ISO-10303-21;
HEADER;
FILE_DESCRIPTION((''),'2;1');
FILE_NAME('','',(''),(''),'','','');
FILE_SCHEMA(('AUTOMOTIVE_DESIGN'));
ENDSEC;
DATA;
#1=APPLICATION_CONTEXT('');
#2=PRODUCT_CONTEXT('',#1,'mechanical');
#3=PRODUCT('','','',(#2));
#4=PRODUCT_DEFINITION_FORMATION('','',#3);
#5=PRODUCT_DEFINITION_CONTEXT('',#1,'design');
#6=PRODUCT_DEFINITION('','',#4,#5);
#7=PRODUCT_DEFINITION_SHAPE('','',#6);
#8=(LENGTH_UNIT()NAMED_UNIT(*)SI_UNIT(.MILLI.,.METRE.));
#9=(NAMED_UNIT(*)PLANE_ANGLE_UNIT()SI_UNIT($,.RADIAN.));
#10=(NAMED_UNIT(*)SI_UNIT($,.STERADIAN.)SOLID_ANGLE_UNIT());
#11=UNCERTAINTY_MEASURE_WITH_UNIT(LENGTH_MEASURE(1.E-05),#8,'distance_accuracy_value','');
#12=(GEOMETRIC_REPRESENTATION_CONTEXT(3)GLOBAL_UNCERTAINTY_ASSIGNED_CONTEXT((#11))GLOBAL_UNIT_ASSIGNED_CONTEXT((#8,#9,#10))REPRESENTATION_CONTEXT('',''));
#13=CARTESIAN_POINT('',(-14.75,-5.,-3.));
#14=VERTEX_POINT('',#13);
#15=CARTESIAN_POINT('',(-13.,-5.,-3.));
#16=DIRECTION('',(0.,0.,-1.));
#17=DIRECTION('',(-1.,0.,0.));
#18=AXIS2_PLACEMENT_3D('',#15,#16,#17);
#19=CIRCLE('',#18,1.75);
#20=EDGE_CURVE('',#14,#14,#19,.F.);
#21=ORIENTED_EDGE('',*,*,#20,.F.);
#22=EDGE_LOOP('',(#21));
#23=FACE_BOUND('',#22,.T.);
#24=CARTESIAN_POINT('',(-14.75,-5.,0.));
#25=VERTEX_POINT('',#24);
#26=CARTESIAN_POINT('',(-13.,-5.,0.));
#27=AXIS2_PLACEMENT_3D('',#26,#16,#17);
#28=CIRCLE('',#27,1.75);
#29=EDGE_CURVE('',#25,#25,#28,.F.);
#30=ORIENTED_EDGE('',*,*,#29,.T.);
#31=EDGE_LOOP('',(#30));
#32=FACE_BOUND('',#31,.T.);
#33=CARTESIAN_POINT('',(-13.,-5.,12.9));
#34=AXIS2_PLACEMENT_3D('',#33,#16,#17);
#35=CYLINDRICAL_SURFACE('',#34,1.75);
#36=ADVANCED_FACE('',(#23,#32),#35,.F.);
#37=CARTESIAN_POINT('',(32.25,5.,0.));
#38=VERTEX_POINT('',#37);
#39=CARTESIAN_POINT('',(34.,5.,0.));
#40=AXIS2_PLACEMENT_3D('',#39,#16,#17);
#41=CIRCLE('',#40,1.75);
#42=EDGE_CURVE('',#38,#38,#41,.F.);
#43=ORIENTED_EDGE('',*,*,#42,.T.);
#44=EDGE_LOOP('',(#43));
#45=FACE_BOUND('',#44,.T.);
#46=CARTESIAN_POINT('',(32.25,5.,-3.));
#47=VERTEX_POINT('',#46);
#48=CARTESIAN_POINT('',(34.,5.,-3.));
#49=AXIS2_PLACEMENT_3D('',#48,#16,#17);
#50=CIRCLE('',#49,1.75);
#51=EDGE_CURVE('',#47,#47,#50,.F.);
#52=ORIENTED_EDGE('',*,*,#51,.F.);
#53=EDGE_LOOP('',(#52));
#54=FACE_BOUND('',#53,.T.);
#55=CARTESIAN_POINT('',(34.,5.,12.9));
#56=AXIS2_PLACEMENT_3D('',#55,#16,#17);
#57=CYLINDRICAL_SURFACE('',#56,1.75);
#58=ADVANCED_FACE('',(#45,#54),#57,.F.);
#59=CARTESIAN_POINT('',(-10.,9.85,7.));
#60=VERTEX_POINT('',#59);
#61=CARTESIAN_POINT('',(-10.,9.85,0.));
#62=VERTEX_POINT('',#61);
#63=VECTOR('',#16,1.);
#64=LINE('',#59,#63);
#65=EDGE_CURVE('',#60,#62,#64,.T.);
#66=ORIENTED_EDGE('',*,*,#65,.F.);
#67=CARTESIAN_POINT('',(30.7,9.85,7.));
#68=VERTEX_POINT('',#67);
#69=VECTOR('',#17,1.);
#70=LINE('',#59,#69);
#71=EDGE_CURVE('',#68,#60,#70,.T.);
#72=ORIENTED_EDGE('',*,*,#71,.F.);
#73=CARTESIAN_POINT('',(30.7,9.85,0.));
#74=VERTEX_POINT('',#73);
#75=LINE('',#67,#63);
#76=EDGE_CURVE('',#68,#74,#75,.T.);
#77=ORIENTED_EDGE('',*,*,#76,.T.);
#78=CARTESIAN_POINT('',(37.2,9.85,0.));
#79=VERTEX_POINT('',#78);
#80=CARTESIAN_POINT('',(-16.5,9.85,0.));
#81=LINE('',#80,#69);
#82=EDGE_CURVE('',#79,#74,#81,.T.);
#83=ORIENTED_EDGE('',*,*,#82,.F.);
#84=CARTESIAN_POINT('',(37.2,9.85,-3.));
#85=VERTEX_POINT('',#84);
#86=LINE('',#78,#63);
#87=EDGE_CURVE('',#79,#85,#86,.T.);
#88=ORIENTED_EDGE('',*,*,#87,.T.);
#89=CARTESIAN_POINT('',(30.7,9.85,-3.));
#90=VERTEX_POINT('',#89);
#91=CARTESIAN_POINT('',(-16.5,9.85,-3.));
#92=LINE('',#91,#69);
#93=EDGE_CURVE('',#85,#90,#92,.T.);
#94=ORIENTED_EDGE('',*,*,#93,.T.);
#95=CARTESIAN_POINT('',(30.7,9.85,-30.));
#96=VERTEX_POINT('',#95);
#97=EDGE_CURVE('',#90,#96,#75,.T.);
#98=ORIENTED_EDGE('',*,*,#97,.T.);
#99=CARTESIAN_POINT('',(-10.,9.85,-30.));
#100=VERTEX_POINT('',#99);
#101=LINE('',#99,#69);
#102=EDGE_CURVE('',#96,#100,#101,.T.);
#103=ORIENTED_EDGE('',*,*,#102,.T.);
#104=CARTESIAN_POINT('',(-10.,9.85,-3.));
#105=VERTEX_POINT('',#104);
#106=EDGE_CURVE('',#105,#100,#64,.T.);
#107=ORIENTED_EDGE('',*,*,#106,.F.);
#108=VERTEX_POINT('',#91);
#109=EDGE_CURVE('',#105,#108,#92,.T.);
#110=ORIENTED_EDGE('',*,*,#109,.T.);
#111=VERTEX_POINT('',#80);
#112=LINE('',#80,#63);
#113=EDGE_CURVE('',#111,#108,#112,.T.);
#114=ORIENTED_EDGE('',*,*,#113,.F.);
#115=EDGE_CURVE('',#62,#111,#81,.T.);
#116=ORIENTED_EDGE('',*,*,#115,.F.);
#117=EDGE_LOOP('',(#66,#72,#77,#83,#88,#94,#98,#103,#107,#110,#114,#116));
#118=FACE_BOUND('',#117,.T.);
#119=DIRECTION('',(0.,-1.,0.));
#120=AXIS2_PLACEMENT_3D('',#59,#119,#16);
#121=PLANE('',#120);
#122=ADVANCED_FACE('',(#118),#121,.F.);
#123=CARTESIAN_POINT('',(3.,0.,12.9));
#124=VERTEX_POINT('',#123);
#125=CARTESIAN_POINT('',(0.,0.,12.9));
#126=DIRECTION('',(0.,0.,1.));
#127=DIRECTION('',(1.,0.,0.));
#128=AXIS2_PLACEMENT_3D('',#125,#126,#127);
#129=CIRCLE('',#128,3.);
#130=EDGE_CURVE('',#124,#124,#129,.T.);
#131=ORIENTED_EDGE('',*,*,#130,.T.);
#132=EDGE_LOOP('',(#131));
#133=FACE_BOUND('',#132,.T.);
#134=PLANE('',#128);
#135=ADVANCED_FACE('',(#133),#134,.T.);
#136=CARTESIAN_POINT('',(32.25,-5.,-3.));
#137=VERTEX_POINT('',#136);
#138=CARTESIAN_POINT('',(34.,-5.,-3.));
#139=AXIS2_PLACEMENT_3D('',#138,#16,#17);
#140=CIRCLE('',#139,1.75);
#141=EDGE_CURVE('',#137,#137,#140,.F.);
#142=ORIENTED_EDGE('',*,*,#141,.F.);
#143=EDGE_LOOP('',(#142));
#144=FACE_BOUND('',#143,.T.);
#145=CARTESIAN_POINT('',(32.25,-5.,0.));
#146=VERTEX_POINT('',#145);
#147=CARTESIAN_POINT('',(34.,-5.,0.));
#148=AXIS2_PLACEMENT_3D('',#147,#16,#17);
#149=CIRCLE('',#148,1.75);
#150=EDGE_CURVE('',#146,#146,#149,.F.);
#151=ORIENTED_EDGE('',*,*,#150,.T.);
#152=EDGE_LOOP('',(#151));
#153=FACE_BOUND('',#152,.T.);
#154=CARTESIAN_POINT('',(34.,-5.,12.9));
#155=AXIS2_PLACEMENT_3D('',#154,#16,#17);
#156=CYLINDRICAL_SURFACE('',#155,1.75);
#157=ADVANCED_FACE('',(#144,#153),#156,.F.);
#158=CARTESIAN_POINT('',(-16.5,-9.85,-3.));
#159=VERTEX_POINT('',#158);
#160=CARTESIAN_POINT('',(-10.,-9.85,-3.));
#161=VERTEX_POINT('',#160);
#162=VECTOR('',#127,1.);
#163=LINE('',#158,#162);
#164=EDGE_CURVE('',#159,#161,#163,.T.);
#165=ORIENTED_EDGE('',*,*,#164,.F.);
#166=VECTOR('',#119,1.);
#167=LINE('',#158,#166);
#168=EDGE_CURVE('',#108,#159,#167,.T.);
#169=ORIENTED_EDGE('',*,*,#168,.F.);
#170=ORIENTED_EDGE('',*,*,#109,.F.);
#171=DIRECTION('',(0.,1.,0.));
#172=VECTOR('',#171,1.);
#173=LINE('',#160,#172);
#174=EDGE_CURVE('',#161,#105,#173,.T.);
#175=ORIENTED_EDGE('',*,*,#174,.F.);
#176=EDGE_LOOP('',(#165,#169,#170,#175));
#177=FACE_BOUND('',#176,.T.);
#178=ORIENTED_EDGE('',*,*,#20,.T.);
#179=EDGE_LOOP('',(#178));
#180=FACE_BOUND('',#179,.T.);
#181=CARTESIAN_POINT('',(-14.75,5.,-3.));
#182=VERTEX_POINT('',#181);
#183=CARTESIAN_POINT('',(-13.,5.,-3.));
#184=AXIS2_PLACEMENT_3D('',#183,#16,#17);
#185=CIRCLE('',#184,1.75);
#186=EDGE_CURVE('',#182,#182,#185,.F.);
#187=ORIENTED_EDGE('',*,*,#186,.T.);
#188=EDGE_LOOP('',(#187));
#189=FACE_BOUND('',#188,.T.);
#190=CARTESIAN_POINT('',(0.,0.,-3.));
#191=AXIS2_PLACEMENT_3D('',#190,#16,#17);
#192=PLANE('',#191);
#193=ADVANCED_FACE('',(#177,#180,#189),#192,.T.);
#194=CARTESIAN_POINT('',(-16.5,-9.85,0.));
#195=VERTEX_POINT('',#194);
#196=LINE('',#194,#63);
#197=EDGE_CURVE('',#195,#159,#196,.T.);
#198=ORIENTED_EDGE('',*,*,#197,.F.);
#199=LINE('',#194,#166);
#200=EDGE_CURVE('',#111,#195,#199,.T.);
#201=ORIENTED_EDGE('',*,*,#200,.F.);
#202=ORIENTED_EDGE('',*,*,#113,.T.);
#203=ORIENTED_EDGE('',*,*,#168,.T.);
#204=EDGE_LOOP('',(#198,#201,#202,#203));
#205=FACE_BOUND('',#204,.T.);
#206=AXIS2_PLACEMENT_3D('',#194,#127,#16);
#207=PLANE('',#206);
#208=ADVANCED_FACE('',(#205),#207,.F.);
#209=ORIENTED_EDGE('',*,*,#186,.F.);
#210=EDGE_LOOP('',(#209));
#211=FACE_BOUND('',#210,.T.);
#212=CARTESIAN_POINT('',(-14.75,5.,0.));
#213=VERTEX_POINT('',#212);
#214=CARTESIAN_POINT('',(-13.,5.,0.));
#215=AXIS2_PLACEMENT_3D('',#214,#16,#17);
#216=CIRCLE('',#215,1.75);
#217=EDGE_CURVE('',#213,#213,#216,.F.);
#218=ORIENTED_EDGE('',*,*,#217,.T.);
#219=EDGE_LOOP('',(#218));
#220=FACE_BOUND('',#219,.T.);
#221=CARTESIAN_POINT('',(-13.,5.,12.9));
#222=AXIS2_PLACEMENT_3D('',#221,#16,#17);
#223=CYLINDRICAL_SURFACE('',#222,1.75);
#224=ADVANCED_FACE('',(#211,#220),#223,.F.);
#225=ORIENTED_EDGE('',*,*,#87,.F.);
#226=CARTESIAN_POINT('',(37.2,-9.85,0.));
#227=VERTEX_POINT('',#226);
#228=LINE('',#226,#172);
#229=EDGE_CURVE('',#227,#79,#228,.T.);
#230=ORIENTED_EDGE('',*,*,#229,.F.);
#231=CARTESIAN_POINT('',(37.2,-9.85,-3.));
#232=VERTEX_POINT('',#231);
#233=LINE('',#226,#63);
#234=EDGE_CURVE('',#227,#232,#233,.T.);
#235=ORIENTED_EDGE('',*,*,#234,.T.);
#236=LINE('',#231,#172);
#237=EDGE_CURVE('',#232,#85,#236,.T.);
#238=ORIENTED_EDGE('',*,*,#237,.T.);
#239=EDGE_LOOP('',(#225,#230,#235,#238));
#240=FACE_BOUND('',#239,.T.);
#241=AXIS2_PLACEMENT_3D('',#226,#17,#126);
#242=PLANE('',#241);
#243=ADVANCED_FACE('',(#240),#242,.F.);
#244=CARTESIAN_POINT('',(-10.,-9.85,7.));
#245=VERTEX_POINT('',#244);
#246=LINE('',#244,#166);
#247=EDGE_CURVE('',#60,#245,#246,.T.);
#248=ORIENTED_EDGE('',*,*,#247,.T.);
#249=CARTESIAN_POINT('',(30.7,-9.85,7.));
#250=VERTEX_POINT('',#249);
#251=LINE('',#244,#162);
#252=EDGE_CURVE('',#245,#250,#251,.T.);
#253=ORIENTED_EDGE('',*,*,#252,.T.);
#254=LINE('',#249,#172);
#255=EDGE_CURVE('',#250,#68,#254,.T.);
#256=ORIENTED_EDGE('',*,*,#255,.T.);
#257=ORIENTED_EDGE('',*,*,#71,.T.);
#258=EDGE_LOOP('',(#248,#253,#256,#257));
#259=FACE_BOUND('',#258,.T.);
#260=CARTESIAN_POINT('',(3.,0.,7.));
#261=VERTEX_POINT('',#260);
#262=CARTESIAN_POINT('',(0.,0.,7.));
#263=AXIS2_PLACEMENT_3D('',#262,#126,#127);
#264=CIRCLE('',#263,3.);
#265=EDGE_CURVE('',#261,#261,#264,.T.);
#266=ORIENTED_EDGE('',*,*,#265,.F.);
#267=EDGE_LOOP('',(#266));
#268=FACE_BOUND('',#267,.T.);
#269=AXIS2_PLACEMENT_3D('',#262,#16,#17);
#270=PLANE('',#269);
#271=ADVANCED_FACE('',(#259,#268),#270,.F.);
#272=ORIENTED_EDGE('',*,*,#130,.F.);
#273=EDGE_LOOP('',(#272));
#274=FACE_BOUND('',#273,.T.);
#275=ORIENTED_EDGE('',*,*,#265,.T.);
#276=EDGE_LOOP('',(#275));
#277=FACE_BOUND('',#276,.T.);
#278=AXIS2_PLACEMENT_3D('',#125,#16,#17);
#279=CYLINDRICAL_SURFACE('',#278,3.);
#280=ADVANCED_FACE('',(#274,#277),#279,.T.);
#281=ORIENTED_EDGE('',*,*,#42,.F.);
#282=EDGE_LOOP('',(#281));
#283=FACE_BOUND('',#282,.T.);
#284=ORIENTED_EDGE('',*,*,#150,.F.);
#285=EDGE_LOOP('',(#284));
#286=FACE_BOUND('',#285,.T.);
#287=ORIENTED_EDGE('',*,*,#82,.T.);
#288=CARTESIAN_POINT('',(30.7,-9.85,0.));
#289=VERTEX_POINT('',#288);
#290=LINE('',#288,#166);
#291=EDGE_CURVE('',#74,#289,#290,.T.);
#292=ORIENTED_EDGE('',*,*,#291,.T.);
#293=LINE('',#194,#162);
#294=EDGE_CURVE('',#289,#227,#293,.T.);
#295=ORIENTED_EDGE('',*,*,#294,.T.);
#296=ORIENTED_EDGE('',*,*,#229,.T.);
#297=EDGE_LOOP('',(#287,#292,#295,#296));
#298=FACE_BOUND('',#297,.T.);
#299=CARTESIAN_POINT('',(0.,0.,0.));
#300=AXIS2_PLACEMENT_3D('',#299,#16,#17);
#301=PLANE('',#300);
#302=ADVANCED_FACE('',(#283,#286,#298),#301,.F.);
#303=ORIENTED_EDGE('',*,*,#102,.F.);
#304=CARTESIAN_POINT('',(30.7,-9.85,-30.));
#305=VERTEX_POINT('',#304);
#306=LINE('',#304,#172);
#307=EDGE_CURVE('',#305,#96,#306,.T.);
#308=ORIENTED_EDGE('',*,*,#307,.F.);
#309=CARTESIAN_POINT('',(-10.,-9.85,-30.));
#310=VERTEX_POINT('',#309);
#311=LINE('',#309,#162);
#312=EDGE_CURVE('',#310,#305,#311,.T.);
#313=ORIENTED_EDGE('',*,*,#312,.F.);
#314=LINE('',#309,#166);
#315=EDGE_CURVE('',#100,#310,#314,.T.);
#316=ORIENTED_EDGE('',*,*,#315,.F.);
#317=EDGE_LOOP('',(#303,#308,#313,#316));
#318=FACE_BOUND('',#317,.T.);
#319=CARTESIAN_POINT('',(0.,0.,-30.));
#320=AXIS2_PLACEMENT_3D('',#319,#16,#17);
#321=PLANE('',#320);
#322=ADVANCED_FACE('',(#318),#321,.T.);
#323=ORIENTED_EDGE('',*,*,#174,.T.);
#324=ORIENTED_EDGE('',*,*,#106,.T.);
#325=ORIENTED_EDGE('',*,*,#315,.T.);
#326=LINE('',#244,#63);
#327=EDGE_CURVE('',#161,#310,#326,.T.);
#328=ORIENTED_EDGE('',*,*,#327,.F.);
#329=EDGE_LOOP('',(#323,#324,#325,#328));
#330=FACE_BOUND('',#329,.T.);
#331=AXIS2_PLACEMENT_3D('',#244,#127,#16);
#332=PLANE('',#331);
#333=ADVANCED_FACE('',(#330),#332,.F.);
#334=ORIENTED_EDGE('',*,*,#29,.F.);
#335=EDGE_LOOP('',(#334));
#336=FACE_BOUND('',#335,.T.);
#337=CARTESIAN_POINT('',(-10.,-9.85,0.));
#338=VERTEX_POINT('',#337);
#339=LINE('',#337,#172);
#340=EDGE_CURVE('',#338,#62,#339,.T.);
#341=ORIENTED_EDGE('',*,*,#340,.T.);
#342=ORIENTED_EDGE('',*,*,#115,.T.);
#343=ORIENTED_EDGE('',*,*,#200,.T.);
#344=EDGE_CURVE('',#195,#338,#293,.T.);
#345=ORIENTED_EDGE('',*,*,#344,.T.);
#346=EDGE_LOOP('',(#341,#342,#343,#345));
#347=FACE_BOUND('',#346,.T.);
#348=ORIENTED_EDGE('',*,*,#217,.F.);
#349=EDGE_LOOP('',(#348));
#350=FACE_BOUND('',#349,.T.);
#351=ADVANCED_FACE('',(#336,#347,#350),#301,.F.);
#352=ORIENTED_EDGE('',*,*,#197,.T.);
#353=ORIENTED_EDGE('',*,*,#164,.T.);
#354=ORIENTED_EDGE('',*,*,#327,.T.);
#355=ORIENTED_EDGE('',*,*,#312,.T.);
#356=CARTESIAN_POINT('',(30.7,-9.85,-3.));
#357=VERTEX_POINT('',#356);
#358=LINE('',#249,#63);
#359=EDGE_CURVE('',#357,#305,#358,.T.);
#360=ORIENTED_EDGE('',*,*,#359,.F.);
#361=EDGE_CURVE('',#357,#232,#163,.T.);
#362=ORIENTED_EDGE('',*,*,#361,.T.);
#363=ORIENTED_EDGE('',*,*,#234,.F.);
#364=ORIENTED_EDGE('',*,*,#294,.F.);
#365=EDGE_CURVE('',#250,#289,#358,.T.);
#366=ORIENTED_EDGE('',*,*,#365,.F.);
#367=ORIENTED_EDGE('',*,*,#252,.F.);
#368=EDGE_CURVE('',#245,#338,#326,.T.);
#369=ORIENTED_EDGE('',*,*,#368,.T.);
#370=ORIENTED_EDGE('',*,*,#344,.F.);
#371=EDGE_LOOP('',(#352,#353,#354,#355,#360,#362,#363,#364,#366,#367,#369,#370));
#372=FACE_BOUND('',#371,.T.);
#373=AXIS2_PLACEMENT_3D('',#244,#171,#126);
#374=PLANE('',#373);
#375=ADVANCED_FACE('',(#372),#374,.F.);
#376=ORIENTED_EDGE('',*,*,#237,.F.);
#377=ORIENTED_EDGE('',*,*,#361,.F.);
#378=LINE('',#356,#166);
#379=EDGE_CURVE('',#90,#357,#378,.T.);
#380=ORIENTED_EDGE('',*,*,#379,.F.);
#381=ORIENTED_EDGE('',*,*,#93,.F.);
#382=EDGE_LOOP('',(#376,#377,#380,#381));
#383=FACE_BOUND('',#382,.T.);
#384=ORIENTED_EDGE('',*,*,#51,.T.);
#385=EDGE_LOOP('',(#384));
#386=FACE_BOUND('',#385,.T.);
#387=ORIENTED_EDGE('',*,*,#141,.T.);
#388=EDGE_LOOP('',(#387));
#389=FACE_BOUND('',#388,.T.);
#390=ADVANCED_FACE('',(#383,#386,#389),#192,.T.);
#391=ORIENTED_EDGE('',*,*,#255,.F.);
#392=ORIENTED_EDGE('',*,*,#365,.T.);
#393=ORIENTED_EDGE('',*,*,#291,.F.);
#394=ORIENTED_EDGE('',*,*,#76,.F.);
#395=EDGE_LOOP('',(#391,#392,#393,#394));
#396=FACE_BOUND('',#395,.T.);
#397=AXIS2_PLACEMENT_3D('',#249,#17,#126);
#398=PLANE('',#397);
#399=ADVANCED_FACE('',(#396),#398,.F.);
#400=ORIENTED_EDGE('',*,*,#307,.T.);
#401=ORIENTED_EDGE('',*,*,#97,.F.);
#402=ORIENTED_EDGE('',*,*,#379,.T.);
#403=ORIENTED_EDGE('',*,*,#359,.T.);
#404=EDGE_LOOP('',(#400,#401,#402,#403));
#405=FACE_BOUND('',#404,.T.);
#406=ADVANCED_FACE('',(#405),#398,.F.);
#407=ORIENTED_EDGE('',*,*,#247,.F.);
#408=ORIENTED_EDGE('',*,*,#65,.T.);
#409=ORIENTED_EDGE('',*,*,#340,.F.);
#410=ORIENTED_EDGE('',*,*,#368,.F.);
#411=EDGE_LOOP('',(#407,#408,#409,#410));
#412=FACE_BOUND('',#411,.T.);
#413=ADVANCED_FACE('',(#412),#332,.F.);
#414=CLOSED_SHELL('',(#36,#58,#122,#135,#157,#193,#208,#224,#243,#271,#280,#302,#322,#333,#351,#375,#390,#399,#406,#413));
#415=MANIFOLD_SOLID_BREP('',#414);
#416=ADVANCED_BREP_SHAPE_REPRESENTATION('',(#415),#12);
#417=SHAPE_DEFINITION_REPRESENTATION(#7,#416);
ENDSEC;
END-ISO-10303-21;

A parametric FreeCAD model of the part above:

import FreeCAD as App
import Part
import Sketcher


def add_polygon(sketch, points):
    """Adds a closed chain of lines whose ends are joined by coincident constraints."""
    first, n = sketch.GeometryCount, len(points)
    for a, b in zip(points, points[1:] + points[:1]):
        sketch.addGeometry(Part.LineSegment(App.Vector(*a, 0), App.Vector(*b, 0)), False)
    for i in range(n):
        sketch.addConstraint(Sketcher.Constraint("Coincident", first + i, 2, first + (i + 1) % n, 1))

doc = App.newDocument("Part")
params = doc.addObject("Spreadsheet::Sheet", "Params")
for row, (alias, value) in enumerate([
    ("sketch1_width", "40.7 mm"),
    ("sketch1_height", "19.7 mm"),
    ("pad1_length", "37 mm"),
    ("sketch2_width", "53.7 mm"),
    ("sketch2_height", "19.7 mm"),
    ("pad2_length", "3 mm"),
    ("sketch3_diameter", "6 mm"),
    ("pad3_length", "5.9 mm"),
    ("sketch4_diameter", "3.5 mm"),
], start=1):
    params.set(f"A{row}", alias)
    params.set(f"B{row}", "=" + value)
    params.setAlias(f"B{row}", alias)

body = doc.addObject("PartDesign::Body", "Body")

# Sketch on XY plane
sketch1 = doc.addObject("Sketcher::SketchObject", "Sketch")
body.addObject(sketch1)
sketch1.AttachmentSupport = (doc.XY_Plane, [""])
sketch1.MapMode = "FlatFace"
sketch1.AttachmentOffset = App.Placement(App.Vector(0, 0, -30), App.Rotation())
add_polygon(sketch1, [(-10, 10), (-10, -10), (31, -10), (31, 10)])  # lines 0-3
sketch1.addConstraint([
    Sketcher.Constraint("Vertical", 0),
    Sketcher.Constraint("Horizontal", 1),
    Sketcher.Constraint("Vertical", 2),
    Sketcher.Constraint("Horizontal", 3),
    Sketcher.Constraint("DistanceX", 1, 1, 1, 2, 40.7),
    Sketcher.Constraint("DistanceY", 0, 2, 0, 1, 19.7),
    Sketcher.Constraint("DistanceX", 0, 2, -1, 1, 10.0),
    Sketcher.Constraint("DistanceY", 0, 2, -1, 1, 9.85),
])
sketch1.setExpression("Constraints[8]", "Params.sketch1_width")
sketch1.setExpression("Constraints[9]", "Params.sketch1_height")
pad1 = doc.addObject("PartDesign::Pad", "Pad")
body.addObject(pad1)
pad1.Profile = sketch1
pad1.setExpression("Length", "Params.pad1_length")

# Sketch on XY plane
sketch2 = doc.addObject("Sketcher::SketchObject", "Sketch001")
body.addObject(sketch2)
sketch2.AttachmentSupport = (doc.XY_Plane, [""])
sketch2.MapMode = "FlatFace"
sketch2.AttachmentOffset = App.Placement(App.Vector(0, 0, -3), App.Rotation())
add_polygon(sketch2, [(-16, 10), (-16, -10), (37, -10), (37, 10)])  # lines 0-3
sketch2.addConstraint([
    Sketcher.Constraint("Vertical", 0),
    Sketcher.Constraint("Horizontal", 1),
    Sketcher.Constraint("Vertical", 2),
    Sketcher.Constraint("Horizontal", 3),
    Sketcher.Constraint("DistanceX", 1, 1, 1, 2, 53.7),
    Sketcher.Constraint("DistanceY", 0, 2, 0, 1, 19.7),
    Sketcher.Constraint("DistanceX", 0, 2, -1, 1, 16.5),
    Sketcher.Constraint("DistanceY", 0, 2, -1, 1, 9.85),
])
sketch2.setExpression("Constraints[8]", "Params.sketch2_width")
sketch2.setExpression("Constraints[9]", "Params.sketch2_height")
pad2 = doc.addObject("PartDesign::Pad", "Pad001")
body.addObject(pad2)
pad2.Profile = sketch2
pad2.setExpression("Length", "Params.pad2_length")

# Sketch on XY plane
sketch3 = doc.addObject("Sketcher::SketchObject", "Sketch002")
body.addObject(sketch3)
sketch3.AttachmentSupport = (doc.XY_Plane, [""])
sketch3.MapMode = "FlatFace"
sketch3.AttachmentOffset = App.Placement(App.Vector(0, 0, 7), App.Rotation())
sketch3.addGeometry(Part.Circle(App.Vector(0, 0, 0), App.Vector(0, 0, 1), 3), False)
sketch3.addConstraint([
    Sketcher.Constraint("Coincident", 0, 3, -1, 1),
    Sketcher.Constraint("Diameter", 0, 6.0),
])
sketch3.setExpression("Constraints[1]", "Params.sketch3_diameter")
pad3 = doc.addObject("PartDesign::Pad", "Pad002")
body.addObject(pad3)
pad3.Profile = sketch3
pad3.setExpression("Length", "Params.pad3_length")

# Sketch on XY plane
sketch4 = doc.addObject("Sketcher::SketchObject", "Sketch003")
body.addObject(sketch4)
sketch4.AttachmentSupport = (doc.XY_Plane, [""])
sketch4.MapMode = "FlatFace"
sketch4.AttachmentOffset = App.Placement(App.Vector(0, 0, -50), App.Rotation())
sketch4.addGeometry([
    Part.Circle(App.Vector(-13, 5, 0), App.Vector(0, 0, 1), 1.8),
    Part.Circle(App.Vector(-13, -5, 0), App.Vector(0, 0, 1), 1.8),
    Part.Circle(App.Vector(34, 5, 0), App.Vector(0, 0, 1), 1.8),
    Part.Circle(App.Vector(34, -5, 0), App.Vector(0, 0, 1), 1.8),
], False)
sketch4.addConstraint([
    Sketcher.Constraint("Equal", 0, 1),
    Sketcher.Constraint("Equal", 1, 2),
    Sketcher.Constraint("Equal", 2, 3),
    Sketcher.Constraint("Symmetric", 0, 3, 1, 3, -1),
    Sketcher.Constraint("Symmetric", 2, 3, 3, 3, -1),
    Sketcher.Constraint("Horizontal", 0, 3, 2, 3),
    Sketcher.Constraint("Diameter", 0, 3.5),
    Sketcher.Constraint("DistanceX", 0, 3, -1, 1, 13.0),
    Sketcher.Constraint("DistanceY", -1, 1, 0, 3, 5.0),
    Sketcher.Constraint("DistanceX", -1, 1, 2, 3, 34.0),
])
sketch4.setExpression("Constraints[6]", "Params.sketch4_diameter")
pocket1 = doc.addObject("PartDesign::Pocket", "Pocket")
body.addObject(pocket1)
pocket1.Profile = sketch4
pocket1.Type = "ThroughAll"
pocket1.Reversed = True

doc.recompute()
